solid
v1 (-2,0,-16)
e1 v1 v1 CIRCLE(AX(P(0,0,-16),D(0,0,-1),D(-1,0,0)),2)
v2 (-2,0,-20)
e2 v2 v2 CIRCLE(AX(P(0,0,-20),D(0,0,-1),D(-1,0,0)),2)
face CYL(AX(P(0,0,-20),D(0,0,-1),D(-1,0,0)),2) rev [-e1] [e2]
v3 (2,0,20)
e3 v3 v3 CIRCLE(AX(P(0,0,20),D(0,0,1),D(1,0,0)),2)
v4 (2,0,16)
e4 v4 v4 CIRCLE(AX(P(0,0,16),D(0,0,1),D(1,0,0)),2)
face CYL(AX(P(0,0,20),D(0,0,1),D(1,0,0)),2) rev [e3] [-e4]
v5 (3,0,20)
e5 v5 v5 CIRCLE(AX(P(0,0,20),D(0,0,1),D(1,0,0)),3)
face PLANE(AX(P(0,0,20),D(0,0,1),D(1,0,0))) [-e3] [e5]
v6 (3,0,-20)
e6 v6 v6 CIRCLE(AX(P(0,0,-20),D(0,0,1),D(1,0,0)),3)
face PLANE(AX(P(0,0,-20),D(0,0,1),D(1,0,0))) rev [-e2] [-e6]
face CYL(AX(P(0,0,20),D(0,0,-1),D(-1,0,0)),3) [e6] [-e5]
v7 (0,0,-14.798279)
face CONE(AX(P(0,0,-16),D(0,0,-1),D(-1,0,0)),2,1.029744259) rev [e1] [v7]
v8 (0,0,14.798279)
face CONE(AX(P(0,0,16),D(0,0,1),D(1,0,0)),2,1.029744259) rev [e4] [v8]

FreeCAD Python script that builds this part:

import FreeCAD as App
import Part
import Sketcher
Q = App.Units.Quantity

doc = App.newDocument("Part")
params = doc.addObject("Spreadsheet::Sheet", "Params")
for row, (alias, value) in enumerate([
    ("sketch1_diameter", "6 mm"),
    ("pad1_length", "40 mm"),
    ("sketch2_width", "2 mm"),
    ("sketch2_height", "4 mm"),
    ("groove_angle", "360 deg"),
], start=1):
    params.set(f"A{row}", alias)
    params.set(f"B{row}", "=" + value)
    params.setAlias(f"B{row}", alias)

body = doc.addObject("PartDesign::Body", "Body")

# Sketch on XY plane
sketch1 = doc.addObject("Sketcher::SketchObject", "Sketch")
body.addObject(sketch1)
sketch1.AttachmentSupport = (doc.XY_Plane, [""])
sketch1.MapMode = "FlatFace"
sketch1.addGeometry(Part.Circle(App.Vector(0, 0, 0), App.Vector(0, 0, 1), 3), False)
sketch1.addConstraint(Sketcher.Constraint("Coincident", 0, 3, -1, 1))
sketch1.addConstraint(Sketcher.Constraint("Diameter", 0, 6.0))
sketch1.setExpression("Constraints[1]", "Params.sketch1_diameter")
pad1 = doc.addObject("PartDesign::Pad", "Pad")
body.addObject(pad1)
pad1.Profile = sketch1
pad1.setExpression("Length", "Params.pad1_length")
pad1.Midplane = True

# Sketch on YZ plane
sketch2 = doc.addObject("Sketcher::SketchObject", "Sketch001")
body.addObject(sketch2)
sketch2.AttachmentSupport = (doc.YZ_Plane, [""])
sketch2.MapMode = "FlatFace"
sketch2.addGeometry(Part.LineSegment(App.Vector(0, 14.8, 0), App.Vector(0, 20, 0)), False)
sketch2.addGeometry(Part.LineSegment(App.Vector(0, 20, 0), App.Vector(-2, 20, 0)), False)
sketch2.addGeometry(Part.LineSegment(App.Vector(-2, 20, 0), App.Vector(-2, 16, 0)), False)
sketch2.addGeometry(Part.LineSegment(App.Vector(-2, 16, 0), App.Vector(0, 14.8, 0)), False)
sketch2.addConstraint(Sketcher.Constraint("Coincident", 0, 2, 1, 1))
sketch2.addConstraint(Sketcher.Constraint("Coincident", 1, 2, 2, 1))
sketch2.addConstraint(Sketcher.Constraint("Coincident", 2, 2, 3, 1))
sketch2.addConstraint(Sketcher.Constraint("Coincident", 3, 2, 0, 1))
sketch2.addConstraint(Sketcher.Constraint("Vertical", 0))
sketch2.addConstraint(Sketcher.Constraint("Horizontal", 1))
sketch2.addConstraint(Sketcher.Constraint("Vertical", 2))
sketch2.addConstraint(Sketcher.Constraint("PointOnObject", 0, 2, -2))
sketch2.addConstraint(Sketcher.Constraint("DistanceX", 1, 2, 1, 1, 2.0))
sketch2.addConstraint(Sketcher.Constraint("DistanceY", 2, 2, 2, 1, 4.0))
sketch2.addConstraint(Sketcher.Constraint("Angle", 3, Q("-31 deg")))
sketch2.addConstraint(Sketcher.Constraint("DistanceY", -1, 1, 0, 2, 20.0))
sketch2.setExpression("Constraints[8]", "Params.sketch2_width")
sketch2.setExpression("Constraints[9]", "Params.sketch2_height")
groove = doc.addObject("PartDesign::Groove", "Groove")
body.addObject(groove)
groove.Profile = sketch2
groove.ReferenceAxis = (sketch2, ["V_Axis"])
groove.setExpression("Angle", "Params.groove_angle")
doc.recompute()

mirrored = doc.addObject("PartDesign::Mirrored", "Mirrored")
body.addObject(mirrored)
mirrored.Originals = [groove]
mirrored.MirrorPlane = (doc.XY_Plane, [""])
body.Tip = mirrored

doc.recompute()
